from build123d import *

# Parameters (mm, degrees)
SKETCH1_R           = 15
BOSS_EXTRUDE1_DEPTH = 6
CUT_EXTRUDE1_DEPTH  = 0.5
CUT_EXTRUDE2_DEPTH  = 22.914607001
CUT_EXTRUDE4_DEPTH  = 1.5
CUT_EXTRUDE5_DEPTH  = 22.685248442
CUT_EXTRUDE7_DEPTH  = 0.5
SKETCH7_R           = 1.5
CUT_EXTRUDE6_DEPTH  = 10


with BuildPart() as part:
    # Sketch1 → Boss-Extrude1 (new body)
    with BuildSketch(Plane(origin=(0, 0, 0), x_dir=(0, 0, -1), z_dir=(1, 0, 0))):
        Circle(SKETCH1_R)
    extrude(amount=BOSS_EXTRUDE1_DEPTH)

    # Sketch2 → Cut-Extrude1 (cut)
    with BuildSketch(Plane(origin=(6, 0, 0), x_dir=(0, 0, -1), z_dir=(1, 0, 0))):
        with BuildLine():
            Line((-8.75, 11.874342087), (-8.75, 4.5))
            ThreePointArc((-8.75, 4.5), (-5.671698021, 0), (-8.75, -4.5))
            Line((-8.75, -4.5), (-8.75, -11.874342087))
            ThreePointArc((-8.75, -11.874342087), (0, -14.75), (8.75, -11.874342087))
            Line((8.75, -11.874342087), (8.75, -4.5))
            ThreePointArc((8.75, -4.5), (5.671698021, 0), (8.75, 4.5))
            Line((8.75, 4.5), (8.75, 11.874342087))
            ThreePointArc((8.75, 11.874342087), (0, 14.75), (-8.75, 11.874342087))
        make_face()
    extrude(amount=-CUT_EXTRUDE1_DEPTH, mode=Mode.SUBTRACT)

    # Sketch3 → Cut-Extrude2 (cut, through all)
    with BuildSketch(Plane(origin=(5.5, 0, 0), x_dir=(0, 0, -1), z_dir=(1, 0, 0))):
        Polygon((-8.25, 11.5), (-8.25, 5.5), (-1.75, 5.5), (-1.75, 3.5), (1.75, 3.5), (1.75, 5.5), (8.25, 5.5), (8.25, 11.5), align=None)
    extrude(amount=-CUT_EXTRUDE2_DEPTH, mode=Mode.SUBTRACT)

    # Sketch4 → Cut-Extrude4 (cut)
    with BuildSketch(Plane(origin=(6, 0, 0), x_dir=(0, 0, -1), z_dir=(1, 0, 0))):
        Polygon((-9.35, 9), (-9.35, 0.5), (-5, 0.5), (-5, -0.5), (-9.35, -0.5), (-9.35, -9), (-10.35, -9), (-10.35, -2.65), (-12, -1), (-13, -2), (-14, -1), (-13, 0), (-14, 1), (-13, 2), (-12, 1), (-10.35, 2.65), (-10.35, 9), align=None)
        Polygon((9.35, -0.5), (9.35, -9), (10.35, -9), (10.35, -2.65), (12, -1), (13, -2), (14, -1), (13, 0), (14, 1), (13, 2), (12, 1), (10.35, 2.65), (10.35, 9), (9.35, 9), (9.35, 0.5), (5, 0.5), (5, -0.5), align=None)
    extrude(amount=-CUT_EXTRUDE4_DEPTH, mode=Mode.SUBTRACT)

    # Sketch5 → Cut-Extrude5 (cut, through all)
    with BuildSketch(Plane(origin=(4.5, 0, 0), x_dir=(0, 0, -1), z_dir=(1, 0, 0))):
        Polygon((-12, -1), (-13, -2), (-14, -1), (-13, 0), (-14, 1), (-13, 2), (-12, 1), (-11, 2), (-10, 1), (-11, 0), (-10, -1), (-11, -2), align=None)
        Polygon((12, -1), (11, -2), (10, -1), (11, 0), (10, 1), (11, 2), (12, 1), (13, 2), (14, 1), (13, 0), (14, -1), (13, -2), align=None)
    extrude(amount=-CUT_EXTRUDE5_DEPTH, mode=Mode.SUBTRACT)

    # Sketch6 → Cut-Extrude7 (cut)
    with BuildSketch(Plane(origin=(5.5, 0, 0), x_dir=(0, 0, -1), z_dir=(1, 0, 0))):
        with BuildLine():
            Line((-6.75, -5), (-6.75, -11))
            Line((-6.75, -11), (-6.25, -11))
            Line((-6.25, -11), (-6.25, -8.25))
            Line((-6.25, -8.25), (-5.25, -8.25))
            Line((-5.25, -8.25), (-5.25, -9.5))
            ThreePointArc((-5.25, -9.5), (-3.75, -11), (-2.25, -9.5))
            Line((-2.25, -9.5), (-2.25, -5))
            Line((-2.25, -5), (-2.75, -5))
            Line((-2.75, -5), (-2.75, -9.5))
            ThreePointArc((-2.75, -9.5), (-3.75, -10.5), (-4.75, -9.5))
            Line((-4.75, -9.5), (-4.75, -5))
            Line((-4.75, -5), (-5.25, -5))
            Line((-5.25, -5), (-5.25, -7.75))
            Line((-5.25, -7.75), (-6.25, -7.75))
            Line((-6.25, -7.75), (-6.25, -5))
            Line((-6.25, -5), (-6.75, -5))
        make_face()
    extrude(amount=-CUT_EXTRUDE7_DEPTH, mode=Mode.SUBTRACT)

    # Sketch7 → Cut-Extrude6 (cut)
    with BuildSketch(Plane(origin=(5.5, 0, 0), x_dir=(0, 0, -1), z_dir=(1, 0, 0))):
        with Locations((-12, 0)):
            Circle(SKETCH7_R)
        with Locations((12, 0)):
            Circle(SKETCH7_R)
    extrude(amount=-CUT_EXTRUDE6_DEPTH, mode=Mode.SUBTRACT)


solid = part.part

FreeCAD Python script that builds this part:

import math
import FreeCAD as App
import Part
import Sketcher


def add_polygon(sketch, points):
    """Adds a closed chain of lines whose ends are joined by coincident constraints."""
    first, n = sketch.GeometryCount, len(points)
    for a, b in zip(points, points[1:] + points[:1]):
        sketch.addGeometry(Part.LineSegment(App.Vector(*a, 0), App.Vector(*b, 0)), False)
    for i in range(n):
        sketch.addConstraint(Sketcher.Constraint("Coincident", first + i, 2, first + (i + 1) % n, 1))

doc = App.newDocument("Part")
body = doc.addObject("PartDesign::Body", "Body")

sketch1 = body.newObject("Sketcher::SketchObject", "Sketch")
sketch1.AttachmentSupport = (doc.getObject("YZ_Plane"), [""])
sketch1.MapMode = "FlatFace"
sketch1.addGeometry(Part.Circle(App.Vector(0, 0, 0), App.Vector(0, 0, 1), 15), False)
sketch1.addConstraint(Sketcher.Constraint("Coincident", 0, 3, -1, 1))
sketch1.addConstraint(Sketcher.Constraint("Diameter", 0, 30.0))
pad1 = body.newObject("PartDesign::Pad", "Pad")
pad1.Profile = sketch1
pad1.Length = 6

sketch2 = body.newObject("Sketcher::SketchObject", "Sketch001")
sketch2.AttachmentSupport = (doc.getObject("YZ_Plane"), [""])
sketch2.MapMode = "FlatFace"
sketch2.AttachmentOffset = App.Placement(App.Vector(0, 0, 6), App.Rotation())
sketch2.addGeometry(Part.LineSegment(App.Vector(11.9, 8.8, 0), App.Vector(4.5, 8.8, 0)), False)
sketch2.addGeometry(Part.ArcOfCircle(Part.Circle(App.Vector(0, 10.5, 0), App.Vector(0, 0, 1), 4.8), math.radians(-159), math.radians(-21)), False)
sketch2.addGeometry(Part.LineSegment(App.Vector(-4.5, 8.8, 0), App.Vector(-11.9, 8.8, 0)), False)
sketch2.addGeometry(Part.ArcOfCircle(Part.Circle(App.Vector(0, 0, 0), App.Vector(0, 0, 1), 14.8), math.radians(144), math.radians(216)), False)
sketch2.addGeometry(Part.LineSegment(App.Vector(-11.9, -8.8, 0), App.Vector(-4.5, -8.8, 0)), False)
sketch2.addGeometry(Part.ArcOfCircle(Part.Circle(App.Vector(0, -10.5, 0), App.Vector(0, 0, 1), 4.8), math.radians(21), math.radians(159)), False)
sketch2.addGeometry(Part.LineSegment(App.Vector(4.5, -8.8, 0), App.Vector(11.9, -8.8, 0)), False)
sketch2.addGeometry(Part.ArcOfCircle(Part.Circle(App.Vector(0, 0, 0), App.Vector(0, 0, 1), 14.8), math.radians(-36), math.radians(36)), False)
sketch2.addConstraint(Sketcher.Constraint("Coincident", 0, 2, 1, 2))
sketch2.addConstraint(Sketcher.Constraint("Coincident", 1, 1, 2, 1))
sketch2.addConstraint(Sketcher.Constraint("Coincident", 2, 2, 3, 1))
sketch2.addConstraint(Sketcher.Constraint("Coincident", 3, 2, 4, 1))
sketch2.addConstraint(Sketcher.Constraint("Coincident", 4, 2, 5, 2))
sketch2.addConstraint(Sketcher.Constraint("Coincident", 5, 1, 6, 1))
sketch2.addConstraint(Sketcher.Constraint("Coincident", 6, 2, 7, 1))
sketch2.addConstraint(Sketcher.Constraint("Coincident", 7, 2, 0, 1))
sketch2.addConstraint(Sketcher.Constraint("Horizontal", 0))
sketch2.addConstraint(Sketcher.Constraint("Horizontal", 2))
sketch2.addConstraint(Sketcher.Constraint("Horizontal", 4))
sketch2.addConstraint(Sketcher.Constraint("Horizontal", 6))
sketch2.addConstraint(Sketcher.Constraint("Coincident", 3, 3, -1, 1))
sketch2.addConstraint(Sketcher.Constraint("Coincident", 7, 3, -1, 1))
sketch2.addConstraint(Sketcher.Constraint("Equal", 1, 5))
sketch2.addConstraint(Sketcher.Constraint("Equal", 3, 7))
sketch2.addConstraint(Sketcher.Constraint("Symmetric", 1, 3, 5, 3, -1, 1))
sketch2.addConstraint(Sketcher.Constraint("Symmetric", 0, 2, 1, 1, -2))
sketch2.addConstraint(Sketcher.Constraint("Horizontal", 4, 2, 5, 1))
sketch2.addConstraint(Sketcher.Constraint("Vertical", 2, 2, 3, 2))
sketch2.addConstraint(Sketcher.Constraint("Radius", 3, 14.75))
sketch2.addConstraint(Sketcher.Constraint("DistanceY", 5, 3, 1, 3, 21.0))
sketch2.addConstraint(Sketcher.Constraint("DistanceX", 1, 1, 0, 2, 9.0))
sketch2.addConstraint(Sketcher.Constraint("Radius", 1, 4.828302))
pocket1 = body.newObject("PartDesign::Pocket", "Pocket")
pocket1.Profile = sketch2
pocket1.Length = 0.5

sketch3 = body.newObject("Sketcher::SketchObject", "Sketch002")
sketch3.AttachmentSupport = (doc.getObject("YZ_Plane"), [""])
sketch3.MapMode = "FlatFace"
sketch3.AttachmentOffset = App.Placement(App.Vector(0, 0, 5.5), App.Rotation())
add_polygon(sketch3, [(11.5, 8.2), (5.5, 8.2), (5.5, 1.8), (3.5, 1.8), (3.5, -1.8), (5.5, -1.8), (5.5, -8.2), (11.5, -8.2)])
sketch3.addConstraint(Sketcher.Constraint("Horizontal", 0))
sketch3.addConstraint(Sketcher.Constraint("Vertical", 1))
sketch3.addConstraint(Sketcher.Constraint("Horizontal", 2))
sketch3.addConstraint(Sketcher.Constraint("Vertical", 3))
sketch3.addConstraint(Sketcher.Constraint("Horizontal", 4))
sketch3.addConstraint(Sketcher.Constraint("Vertical", 5))
sketch3.addConstraint(Sketcher.Constraint("Horizontal", 6))
sketch3.addConstraint(Sketcher.Constraint("Vertical", 7))
sketch3.addConstraint(Sketcher.Constraint("Symmetric", 1, 2, 4, 2, -1))
sketch3.addConstraint(Sketcher.Constraint("Equal", 1, 5))
sketch3.addConstraint(Sketcher.Constraint("DistanceX", 0, 2, 0, 1, 6.0))
sketch3.addConstraint(Sketcher.Constraint("DistanceX", 2, 2, 2, 1, 2.0))
sketch3.addConstraint(Sketcher.Constraint("DistanceY", 1, 2, 1, 1, 6.5))
sketch3.addConstraint(Sketcher.Constraint("DistanceY", 3, 2, 3, 1, 3.5))
sketch3.addConstraint(Sketcher.Constraint("DistanceX", -1, 1, 0, 2, 5.5))
pocket2 = body.newObject("PartDesign::Pocket", "Pocket001")
pocket2.Profile = sketch3
pocket2.Type = "ThroughAll"

sketch4 = body.newObject("Sketcher::SketchObject", "Sketch003")
sketch4.AttachmentSupport = (doc.getObject("YZ_Plane"), [""])
sketch4.MapMode = "FlatFace"
sketch4.AttachmentOffset = App.Placement(App.Vector(0, 0, 6), App.Rotation())
add_polygon(sketch4, [(0.5, 9.3), (9, 9.3), (9, 10.3), (2.6, 10.3), (1, 12), (2, 13), (1, 14), (0, 13), (-1, 14), (-2, 13), (-1, 12), (-2.6, 10.3), (-9, 10.3), (-9, 9.3), (-0.5, 9.3), (-0.5, 5), (0.5, 5)])
add_polygon(sketch4, [(-0.5, -9.3), (-9, -9.3), (-9, -10.3), (-2.6, -10.3), (-1, -12), (-2, -13), (-1, -14), (0, -13), (1, -14), (2, -13), (1, -12), (2.6, -10.3), (9, -10.3), (9, -9.3), (0.5, -9.3), (0.5, -5), (-0.5, -5)])
sketch4.addConstraint(Sketcher.Constraint("Horizontal", 0))
sketch4.addConstraint(Sketcher.Constraint("Vertical", 1))
sketch4.addConstraint(Sketcher.Constraint("Horizontal", 2))
sketch4.addConstraint(Sketcher.Constraint("Horizontal", 11))
sketch4.addConstraint(Sketcher.Constraint("Vertical", 12))
sketch4.addConstraint(Sketcher.Constraint("Horizontal", 13))
sketch4.addConstraint(Sketcher.Constraint("Vertical", 14))
sketch4.addConstraint(Sketcher.Constraint("Horizontal", 15))
sketch4.addConstraint(Sketcher.Constraint("Vertical", 16))
sketch4.addConstraint(Sketcher.Constraint("Horizontal", 17))
sketch4.addConstraint(Sketcher.Constraint("Vertical", 18))
sketch4.addConstraint(Sketcher.Constraint("Horizontal", 19))
sketch4.addConstraint(Sketcher.Constraint("Horizontal", 28))
sketch4.addConstraint(Sketcher.Constraint("Vertical", 29))
sketch4.addConstraint(Sketcher.Constraint("Horizontal", 30))
sketch4.addConstraint(Sketcher.Constraint("Vertical", 31))
sketch4.addConstraint(Sketcher.Constraint("Horizontal", 32))
sketch4.addConstraint(Sketcher.Constraint("Vertical", 33))
sketch4.addConstraint(Sketcher.Constraint("Symmetric", 0, 2, 17, 2, -1, 1))
sketch4.addConstraint(Sketcher.Constraint("Symmetric", 2, 2, 19, 2, -1, 1))
sketch4.addConstraint(Sketcher.Constraint("Symmetric", 3, 2, 20, 2, -1, 1))
sketch4.addConstraint(Sketcher.Constraint("Symmetric", 4, 2, 21, 2, -1, 1))
sketch4.addConstraint(Sketcher.Constraint("Symmetric", 5, 2, 22, 2, -1, 1))
sketch4.addConstraint(Sketcher.Constraint("Symmetric", 6, 2, 23, 2, -1, 1))
sketch4.addConstraint(Sketcher.Constraint("Symmetric", 7, 2, 24, 2, -1, 1))
sketch4.addConstraint(Sketcher.Constraint("Symmetric", 8, 2, 25, 2, -1, 1))
sketch4.addConstraint(Sketcher.Constraint("Symmetric", 9, 2, 26, 2, -1, 1))
sketch4.addConstraint(Sketcher.Constraint("Symmetric", 10, 2, 27, 2, -1, 1))
sketch4.addConstraint(Sketcher.Constraint("Symmetric", 12, 2, 29, 2, -1, 1))
sketch4.addConstraint(Sketcher.Constraint("Symmetric", 14, 2, 31, 2, -1, 1))
sketch4.addConstraint(Sketcher.Constraint("Symmetric", 5, 2, 7, 2, -2))
sketch4.addConstraint(Sketcher.Constraint("Symmetric", 4, 2, 8, 2, -2))
sketch4.addConstraint(Sketcher.Constraint("Symmetric", 3, 2, 9, 2, -2))
sketch4.addConstraint(Sketcher.Constraint("Symmetric", 2, 2, 10, 2, -2))
sketch4.addConstraint(Sketcher.Constraint("Symmetric", 0, 2, 12, 2, -2))
sketch4.addConstraint(Sketcher.Constraint("PointOnObject", 6, 2, -2))
sketch4.addConstraint(Sketcher.Constraint("Perpendicular", 3, 4))
sketch4.addConstraint(Sketcher.Constraint("Perpendicular", 4, 5))
sketch4.addConstraint(Sketcher.Constraint("Perpendicular", 5, 6))
sketch4.addConstraint(Sketcher.Constraint("Perpendicular", 6, 7))
sketch4.addConstraint(Sketcher.Constraint("Horizontal", 4, 2, 6, 2))
sketch4.addConstraint(Sketcher.Constraint("Vertical", 3, 2, 5, 2))
sketch4.addConstraint(Sketcher.Constraint("Vertical", 16, 2, 30, 2))
sketch4.addConstraint(Sketcher.Constraint("Vertical", 14, 2, 32, 2))
sketch4.addConstraint(Sketcher.Constraint("Equal", 32, 1))
sketch4.addConstraint(Sketcher.Constraint("DistanceX", 15, 1, 15, 2, 1.0))
sketch4.addConstraint(Sketcher.Constraint("DistanceX", 0, 1, 0, 2, 8.5))
sketch4.addConstraint(Sketcher.Constraint("DistanceX", -1, 1, 3, 2, 1.0))
sketch4.addConstraint(Sketcher.Constraint("DistanceY", -1, 1, 3, 2, 12.0))
sketch4.addConstraint(Sketcher.Constraint("DistanceY", -1, 1, 14, 2, 5.0))
sketch4.addConstraint(Sketcher.Constraint("DistanceX", 2, 2, 2, 1, 6.35))
pocket3 = body.newObject("PartDesign::Pocket", "Pocket002")
pocket3.Profile = sketch4
pocket3.Length = 1.5

sketch5 = body.newObject("Sketcher::SketchObject", "Sketch004")
sketch5.AttachmentSupport = (doc.getObject("YZ_Plane"), [""])
sketch5.MapMode = "FlatFace"
sketch5.AttachmentOffset = App.Placement(App.Vector(0, 0, 4.5), App.Rotation())
add_polygon(sketch5, [(-2, 13), (-1, 12), (-2, 11), (-1, 10), (0, 11), (1, 10), (2, 11), (1, 12), (2, 13), (1, 14), (0, 13), (-1, 14)])
add_polygon(sketch5, [(-2, -11), (-1, -12), (-2, -13), (-1, -14), (0, -13), (1, -14), (2, -13), (1, -12), (2, -11), (1, -10), (0, -11), (-1, -10)])
sketch5.addConstraint(Sketcher.Constraint("Symmetric", 6, 2, 12, 2, -1, 1))
sketch5.addConstraint(Sketcher.Constraint("Symmetric", 7, 2, 13, 2, -1, 1))
sketch5.addConstraint(Sketcher.Constraint("Symmetric", 8, 2, 14, 2, -1, 1))
sketch5.addConstraint(Sketcher.Constraint("Symmetric", 9, 2, 15, 2, -1, 1))
sketch5.addConstraint(Sketcher.Constraint("Symmetric", 10, 2, 16, 2, -1, 1))
sketch5.addConstraint(Sketcher.Constraint("Symmetric", 11, 2, 17, 2, -1, 1))
sketch5.addConstraint(Sketcher.Constraint("Symmetric", 0, 2, 18, 2, -1, 1))
sketch5.addConstraint(Sketcher.Constraint("Symmetric", 1, 2, 19, 2, -1, 1))
sketch5.addConstraint(Sketcher.Constraint("Symmetric", 2, 2, 20, 2, -1, 1))
sketch5.addConstraint(Sketcher.Constraint("Symmetric", 3, 2, 21, 2, -1, 1))
sketch5.addConstraint(Sketcher.Constraint("Symmetric", 4, 2, 22, 2, -1, 1))
sketch5.addConstraint(Sketcher.Constraint("Symmetric", 5, 2, 23, 2, -1, 1))
sketch5.addConstraint(Sketcher.Constraint("Symmetric", 2, 2, 4, 2, -2))
sketch5.addConstraint(Sketcher.Constraint("Symmetric", 1, 2, 5, 2, -2))
sketch5.addConstraint(Sketcher.Constraint("Symmetric", 0, 2, 6, 2, -2))
sketch5.addConstraint(Sketcher.Constraint("Symmetric", 8, 2, 10, 2, -2))
sketch5.addConstraint(Sketcher.Constraint("Symmetric", 7, 2, 11, 2, -2))
sketch5.addConstraint(Sketcher.Constraint("PointOnObject", 3, 2, -2))
sketch5.addConstraint(Sketcher.Constraint("PointOnObject", 9, 2, -2))
sketch5.addConstraint(Sketcher.Constraint("Perpendicular", 0, 1))
sketch5.addConstraint(Sketcher.Constraint("Perpendicular", 1, 2))
sketch5.addConstraint(Sketcher.Constraint("Perpendicular", 2, 3))
sketch5.addConstraint(Sketcher.Constraint("Perpendicular", 3, 4))
sketch5.addConstraint(Sketcher.Constraint("Perpendicular", 7, 8))
sketch5.addConstraint(Sketcher.Constraint("Perpendicular", 8, 9))
sketch5.addConstraint(Sketcher.Constraint("Horizontal", 1, 2, 3, 2))
sketch5.addConstraint(Sketcher.Constraint("Horizontal", 7, 2, 9, 2))
sketch5.addConstraint(Sketcher.Constraint("Vertical", 0, 2, 2, 2))
sketch5.addConstraint(Sketcher.Constraint("Vertical", 5, 2, 7, 2))
sketch5.addConstraint(Sketcher.Constraint("DistanceX", 0, 2, -1, 1, 1.0))
sketch5.addConstraint(Sketcher.Constraint("DistanceY", -1, 1, 0, 2, 12.0))
pocket4 = body.newObject("PartDesign::Pocket", "Pocket003")
pocket4.Profile = sketch5
pocket4.Type = "ThroughAll"

sketch6 = body.newObject("Sketcher::SketchObject", "Sketch005")
sketch6.AttachmentSupport = (doc.getObject("YZ_Plane"), [""])
sketch6.MapMode = "FlatFace"
sketch6.AttachmentOffset = App.Placement(App.Vector(0, 0, 5.5), App.Rotation())
sketch6.addGeometry(Part.LineSegment(App.Vector(-5, 6.8, 0), App.Vector(-11, 6.8, 0)), False)
sketch6.addGeometry(Part.LineSegment(App.Vector(-11, 6.8, 0), App.Vector(-11, 6.2, 0)), False)
sketch6.addGeometry(Part.LineSegment(App.Vector(-11, 6.2, 0), App.Vector(-8.2, 6.2, 0)), False)
sketch6.addGeometry(Part.LineSegment(App.Vector(-8.2, 6.2, 0), App.Vector(-8.2, 5.2, 0)), False)
sketch6.addGeometry(Part.LineSegment(App.Vector(-8.2, 5.2, 0), App.Vector(-9.5, 5.2, 0)), False)
sketch6.addGeometry(Part.ArcOfCircle(Part.Circle(App.Vector(-9.5, 3.8, 0), App.Vector(0, 0, 1), 1.5), math.radians(90), math.radians(270)), False)
sketch6.addGeometry(Part.LineSegment(App.Vector(-9.5, 2.2, 0), App.Vector(-5, 2.2, 0)), False)
sketch6.addGeometry(Part.LineSegment(App.Vector(-5, 2.2, 0), App.Vector(-5, 2.8, 0)), False)
sketch6.addGeometry(Part.LineSegment(App.Vector(-5, 2.8, 0), App.Vector(-9.5, 2.8, 0)), False)
sketch6.addGeometry(Part.ArcOfCircle(Part.Circle(App.Vector(-9.5, 3.8, 0), App.Vector(0, 0, 1), 1), math.radians(90), math.radians(270)), False)
sketch6.addGeometry(Part.LineSegment(App.Vector(-9.5, 4.8, 0), App.Vector(-5, 4.8, 0)), False)
sketch6.addGeometry(Part.LineSegment(App.Vector(-5, 4.8, 0), App.Vector(-5, 5.2, 0)), False)
sketch6.addGeometry(Part.LineSegment(App.Vector(-5, 5.2, 0), App.Vector(-7.8, 5.2, 0)), False)
sketch6.addGeometry(Part.LineSegment(App.Vector(-7.8, 5.2, 0), App.Vector(-7.8, 6.2, 0)), False)
sketch6.addGeometry(Part.LineSegment(App.Vector(-7.8, 6.2, 0), App.Vector(-5, 6.2, 0)), False)
sketch6.addGeometry(Part.LineSegment(App.Vector(-5, 6.2, 0), App.Vector(-5, 6.8, 0)), False)
sketch6.addConstraint(Sketcher.Constraint("Coincident", 0, 2, 1, 1))
sketch6.addConstraint(Sketcher.Constraint("Coincident", 1, 2, 2, 1))
sketch6.addConstraint(Sketcher.Constraint("Coincident", 2, 2, 3, 1))
sketch6.addConstraint(Sketcher.Constraint("Coincident", 3, 2, 4, 1))
sketch6.addConstraint(Sketcher.Constraint("Tangent", 4, 2, 5, 1))
sketch6.addConstraint(Sketcher.Constraint("Tangent", 5, 2, 6, 1))
sketch6.addConstraint(Sketcher.Constraint("Coincident", 6, 2, 7, 1))
sketch6.addConstraint(Sketcher.Constraint("Coincident", 7, 2, 8, 1))
sketch6.addConstraint(Sketcher.Constraint("Tangent", 8, 2, 9, 2))
sketch6.addConstraint(Sketcher.Constraint("Tangent", 9, 1, 10, 1))
sketch6.addConstraint(Sketcher.Constraint("Coincident", 10, 2, 11, 1))
sketch6.addConstraint(Sketcher.Constraint("Coincident", 11, 2, 12, 1))
sketch6.addConstraint(Sketcher.Constraint("Coincident", 12, 2, 13, 1))
sketch6.addConstraint(Sketcher.Constraint("Coincident", 13, 2, 14, 1))
sketch6.addConstraint(Sketcher.Constraint("Coincident", 14, 2, 15, 1))
sketch6.addConstraint(Sketcher.Constraint("Coincident", 15, 2, 0, 1))
sketch6.addConstraint(Sketcher.Constraint("Horizontal", 0))
sketch6.addConstraint(Sketcher.Constraint("Vertical", 1))
sketch6.addConstraint(Sketcher.Constraint("Horizontal", 2))
sketch6.addConstraint(Sketcher.Constraint("Vertical", 3))
sketch6.addConstraint(Sketcher.Constraint("Horizontal", 4))
sketch6.addConstraint(Sketcher.Constraint("Horizontal", 6))
sketch6.addConstraint(Sketcher.Constraint("Vertical", 7))
sketch6.addConstraint(Sketcher.Constraint("Horizontal", 8))
sketch6.addConstraint(Sketcher.Constraint("Horizontal", 10))
sketch6.addConstraint(Sketcher.Constraint("Vertical", 11))
sketch6.addConstraint(Sketcher.Constraint("Horizontal", 12))
sketch6.addConstraint(Sketcher.Constraint("Vertical", 13))
sketch6.addConstraint(Sketcher.Constraint("Horizontal", 14))
sketch6.addConstraint(Sketcher.Constraint("Vertical", 15))
sketch6.addConstraint(Sketcher.Constraint("Coincident", 9, 3, 5, 3))
sketch6.addConstraint(Sketcher.Constraint("Horizontal", 4, 2, 11, 2))
sketch6.addConstraint(Sketcher.Constraint("Horizontal", 2, 2, 13, 2))
sketch6.addConstraint(Sketcher.Constraint("Vertical", 7, 2, 10, 2))
sketch6.addConstraint(Sketcher.Constraint("Vertical", 11, 2, 14, 2))
sketch6.addConstraint(Sketcher.Constraint("Equal", 2, 12))
sketch6.addConstraint(Sketcher.Constraint("Equal", 1, 7))
sketch6.addConstraint(Sketcher.Constraint("Radius", 9, 1.0))
sketch6.addConstraint(Sketcher.Constraint("Radius", 5, 1.5))
sketch6.addConstraint(Sketcher.Constraint("DistanceX", 0, 2, 0, 1, 6.0))
sketch6.addConstraint(Sketcher.Constraint("DistanceY", 3, 2, 3, 1, 1.0))
sketch6.addConstraint(Sketcher.Constraint("DistanceX", 6, 1, 6, 2, 4.5))
sketch6.addConstraint(Sketcher.Constraint("DistanceX", 0, 2, -1, 1, 11.0))
sketch6.addConstraint(Sketcher.Constraint("DistanceX", 2, 1, 2, 2, 2.75))
sketch6.addConstraint(Sketcher.Constraint("DistanceY", -1, 1, 5, 3, 3.75))
pocket5 = body.newObject("PartDesign::Pocket", "Pocket004")
pocket5.Profile = sketch6
pocket5.Length = 0.5

sketch7 = body.newObject("Sketcher::SketchObject", "Sketch006")
sketch7.AttachmentSupport = (doc.getObject("YZ_Plane"), [""])
sketch7.MapMode = "FlatFace"
sketch7.AttachmentOffset = App.Placement(App.Vector(0, 0, 5.5), App.Rotation())
sketch7.addGeometry(Part.Circle(App.Vector(0, 12, 0), App.Vector(0, 0, 1), 1.5), False)
sketch7.addGeometry(Part.Circle(App.Vector(0, -12, 0), App.Vector(0, 0, 1), 1.5), False)
sketch7.addConstraint(Sketcher.Constraint("Equal", 0, 1))
sketch7.addConstraint(Sketcher.Constraint("Symmetric", 0, 3, 1, 3, -1, 1))
sketch7.addConstraint(Sketcher.Constraint("PointOnObject", 0, 3, -2))
sketch7.addConstraint(Sketcher.Constraint("Diameter", 0, 3.0))
sketch7.addConstraint(Sketcher.Constraint("DistanceY", -1, 1, 0, 3, 12.0))
pocket6 = body.newObject("PartDesign::Pocket", "Pocket005")
pocket6.Profile = sketch7
pocket6.Length = 10

doc.recompute()
